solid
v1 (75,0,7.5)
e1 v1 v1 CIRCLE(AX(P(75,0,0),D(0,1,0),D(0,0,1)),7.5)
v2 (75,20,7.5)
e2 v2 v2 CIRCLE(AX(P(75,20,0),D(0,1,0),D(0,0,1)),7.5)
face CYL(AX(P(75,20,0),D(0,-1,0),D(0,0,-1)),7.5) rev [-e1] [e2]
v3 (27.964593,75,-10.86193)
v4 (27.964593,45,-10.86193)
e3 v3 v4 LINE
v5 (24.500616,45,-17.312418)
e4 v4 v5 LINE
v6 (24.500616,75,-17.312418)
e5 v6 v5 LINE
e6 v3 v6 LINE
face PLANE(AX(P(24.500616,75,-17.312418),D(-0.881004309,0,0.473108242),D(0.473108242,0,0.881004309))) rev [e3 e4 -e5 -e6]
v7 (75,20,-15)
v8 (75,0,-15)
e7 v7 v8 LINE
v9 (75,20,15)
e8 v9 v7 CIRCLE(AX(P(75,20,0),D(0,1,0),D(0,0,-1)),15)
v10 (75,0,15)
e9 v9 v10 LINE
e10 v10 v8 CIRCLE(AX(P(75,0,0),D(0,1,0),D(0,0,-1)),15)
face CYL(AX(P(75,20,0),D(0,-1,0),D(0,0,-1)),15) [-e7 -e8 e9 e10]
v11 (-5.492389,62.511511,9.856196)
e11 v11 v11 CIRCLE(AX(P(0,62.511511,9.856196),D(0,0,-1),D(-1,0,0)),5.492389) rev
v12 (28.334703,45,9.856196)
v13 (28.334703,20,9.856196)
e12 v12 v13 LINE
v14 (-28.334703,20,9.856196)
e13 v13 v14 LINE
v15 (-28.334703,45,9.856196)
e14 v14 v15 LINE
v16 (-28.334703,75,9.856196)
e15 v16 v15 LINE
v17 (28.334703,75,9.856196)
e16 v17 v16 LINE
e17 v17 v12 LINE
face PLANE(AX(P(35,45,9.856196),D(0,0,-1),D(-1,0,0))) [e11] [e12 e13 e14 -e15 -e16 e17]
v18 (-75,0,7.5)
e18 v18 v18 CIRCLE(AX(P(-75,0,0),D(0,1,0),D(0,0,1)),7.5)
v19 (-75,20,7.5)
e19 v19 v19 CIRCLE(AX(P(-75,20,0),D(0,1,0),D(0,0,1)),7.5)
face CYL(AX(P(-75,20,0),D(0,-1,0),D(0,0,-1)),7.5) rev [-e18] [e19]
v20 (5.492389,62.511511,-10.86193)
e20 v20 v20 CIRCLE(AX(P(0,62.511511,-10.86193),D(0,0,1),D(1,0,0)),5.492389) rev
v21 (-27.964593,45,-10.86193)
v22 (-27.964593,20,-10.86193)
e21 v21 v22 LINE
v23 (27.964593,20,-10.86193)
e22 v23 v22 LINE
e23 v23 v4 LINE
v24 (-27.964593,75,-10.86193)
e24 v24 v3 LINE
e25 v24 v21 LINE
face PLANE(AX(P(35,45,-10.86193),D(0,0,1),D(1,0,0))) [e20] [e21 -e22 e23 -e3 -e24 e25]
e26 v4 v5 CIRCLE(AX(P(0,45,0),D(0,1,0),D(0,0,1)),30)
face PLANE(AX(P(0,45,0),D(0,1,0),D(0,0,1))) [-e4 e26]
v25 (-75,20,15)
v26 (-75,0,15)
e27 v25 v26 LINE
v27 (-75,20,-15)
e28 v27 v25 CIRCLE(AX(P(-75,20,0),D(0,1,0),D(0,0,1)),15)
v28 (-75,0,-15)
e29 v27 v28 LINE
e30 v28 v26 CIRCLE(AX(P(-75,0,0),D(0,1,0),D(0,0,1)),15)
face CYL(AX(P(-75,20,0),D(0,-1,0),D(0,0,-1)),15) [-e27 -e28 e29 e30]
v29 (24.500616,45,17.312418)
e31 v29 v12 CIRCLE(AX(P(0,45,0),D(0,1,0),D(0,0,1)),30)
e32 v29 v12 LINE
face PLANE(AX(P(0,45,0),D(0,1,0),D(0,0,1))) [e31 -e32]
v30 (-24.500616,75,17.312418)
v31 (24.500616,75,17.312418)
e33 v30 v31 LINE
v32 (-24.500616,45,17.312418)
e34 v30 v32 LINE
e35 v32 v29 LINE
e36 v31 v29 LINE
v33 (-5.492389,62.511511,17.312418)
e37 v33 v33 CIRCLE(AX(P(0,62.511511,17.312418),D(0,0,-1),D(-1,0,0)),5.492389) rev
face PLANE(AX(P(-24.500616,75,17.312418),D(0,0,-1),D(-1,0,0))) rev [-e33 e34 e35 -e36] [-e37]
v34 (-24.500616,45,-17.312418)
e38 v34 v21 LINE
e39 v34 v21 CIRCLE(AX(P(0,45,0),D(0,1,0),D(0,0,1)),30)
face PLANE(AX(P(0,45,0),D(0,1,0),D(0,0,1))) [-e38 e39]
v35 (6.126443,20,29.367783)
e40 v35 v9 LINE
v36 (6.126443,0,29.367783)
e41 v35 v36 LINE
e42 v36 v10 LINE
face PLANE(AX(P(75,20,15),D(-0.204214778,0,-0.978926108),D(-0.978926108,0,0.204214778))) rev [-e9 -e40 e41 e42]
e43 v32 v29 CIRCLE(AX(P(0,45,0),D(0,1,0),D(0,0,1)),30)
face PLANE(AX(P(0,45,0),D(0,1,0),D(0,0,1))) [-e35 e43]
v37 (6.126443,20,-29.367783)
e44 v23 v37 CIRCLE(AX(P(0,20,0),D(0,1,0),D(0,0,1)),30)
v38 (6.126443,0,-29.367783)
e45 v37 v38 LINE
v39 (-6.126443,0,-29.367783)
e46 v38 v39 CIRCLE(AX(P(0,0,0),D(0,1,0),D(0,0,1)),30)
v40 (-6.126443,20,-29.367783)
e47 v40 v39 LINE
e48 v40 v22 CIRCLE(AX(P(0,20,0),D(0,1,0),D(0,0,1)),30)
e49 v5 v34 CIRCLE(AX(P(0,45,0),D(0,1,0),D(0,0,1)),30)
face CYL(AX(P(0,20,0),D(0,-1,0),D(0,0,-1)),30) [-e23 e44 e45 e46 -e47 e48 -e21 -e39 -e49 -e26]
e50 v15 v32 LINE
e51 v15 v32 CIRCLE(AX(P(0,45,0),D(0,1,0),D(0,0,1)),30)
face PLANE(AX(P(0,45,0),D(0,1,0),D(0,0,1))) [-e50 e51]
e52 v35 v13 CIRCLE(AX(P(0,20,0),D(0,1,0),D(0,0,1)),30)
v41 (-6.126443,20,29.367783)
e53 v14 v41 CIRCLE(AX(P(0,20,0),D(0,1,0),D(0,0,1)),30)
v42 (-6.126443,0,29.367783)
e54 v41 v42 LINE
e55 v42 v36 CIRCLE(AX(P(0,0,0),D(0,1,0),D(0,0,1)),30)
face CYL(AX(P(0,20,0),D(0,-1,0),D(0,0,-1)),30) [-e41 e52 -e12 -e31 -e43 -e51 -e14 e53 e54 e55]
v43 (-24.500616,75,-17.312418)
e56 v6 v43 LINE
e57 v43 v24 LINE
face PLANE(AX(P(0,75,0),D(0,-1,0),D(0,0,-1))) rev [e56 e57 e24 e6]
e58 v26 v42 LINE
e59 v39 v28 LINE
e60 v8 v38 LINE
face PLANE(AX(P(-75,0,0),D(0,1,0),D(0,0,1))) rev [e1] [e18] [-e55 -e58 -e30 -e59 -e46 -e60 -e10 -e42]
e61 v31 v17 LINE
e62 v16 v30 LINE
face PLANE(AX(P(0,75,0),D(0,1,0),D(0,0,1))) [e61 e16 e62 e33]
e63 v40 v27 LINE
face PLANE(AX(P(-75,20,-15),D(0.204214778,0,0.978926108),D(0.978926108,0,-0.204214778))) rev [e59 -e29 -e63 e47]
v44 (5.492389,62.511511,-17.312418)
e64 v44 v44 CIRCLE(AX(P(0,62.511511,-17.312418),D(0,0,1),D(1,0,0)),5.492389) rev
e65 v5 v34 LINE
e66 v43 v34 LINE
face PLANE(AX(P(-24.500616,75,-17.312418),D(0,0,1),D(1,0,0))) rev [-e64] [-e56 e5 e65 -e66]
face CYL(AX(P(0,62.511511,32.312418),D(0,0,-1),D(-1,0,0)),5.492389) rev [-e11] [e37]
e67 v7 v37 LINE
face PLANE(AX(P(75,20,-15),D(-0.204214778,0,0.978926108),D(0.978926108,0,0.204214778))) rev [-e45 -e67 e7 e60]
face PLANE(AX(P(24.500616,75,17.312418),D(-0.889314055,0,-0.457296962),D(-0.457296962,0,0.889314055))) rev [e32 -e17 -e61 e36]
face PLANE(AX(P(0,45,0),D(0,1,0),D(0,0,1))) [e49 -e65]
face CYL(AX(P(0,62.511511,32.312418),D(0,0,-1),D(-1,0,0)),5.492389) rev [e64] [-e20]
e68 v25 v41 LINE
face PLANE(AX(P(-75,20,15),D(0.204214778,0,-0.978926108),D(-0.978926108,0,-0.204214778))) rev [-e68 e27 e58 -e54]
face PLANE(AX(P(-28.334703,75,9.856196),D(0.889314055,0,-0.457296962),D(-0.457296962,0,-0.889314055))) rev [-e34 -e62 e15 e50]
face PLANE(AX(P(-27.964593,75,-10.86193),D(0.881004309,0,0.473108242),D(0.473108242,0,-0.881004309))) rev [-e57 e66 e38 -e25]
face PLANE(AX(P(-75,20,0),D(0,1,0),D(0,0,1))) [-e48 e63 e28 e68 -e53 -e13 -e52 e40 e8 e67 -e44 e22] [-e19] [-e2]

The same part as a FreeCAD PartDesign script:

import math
import FreeCAD as App
import Part
import Sketcher

V = App.Vector
Q = App.Units.Quantity


def add_polygon(sketch, points):
    """Adds a closed chain of lines whose ends are joined by coincident constraints."""
    first, n = sketch.GeometryCount, len(points)
    for a, b in zip(points, points[1:] + points[:1]):
        sketch.addGeometry(Part.LineSegment(App.Vector(*a, 0), App.Vector(*b, 0)), False)
    for i in range(n):
        sketch.addConstraint(Sketcher.Constraint("Coincident", first + i, 2, first + (i + 1) % n, 1))

doc = App.newDocument("Part")
body = doc.addObject("PartDesign::Body", "Body")

sketch1 = body.newObject("Sketcher::SketchObject", "Sketch")
sketch1.AttachmentSupport = (doc.getObject("XZ_Plane"), [""])
sketch1.MapMode = "FlatFace"
sketch1.addGeometry([
    Part.LineSegment(V(-6.126443, -29.367783, 0), V(-75, -15, 0)),
    Part.ArcOfCircle(Part.Circle(V(-75, 0, 0), V(0, 0, 1), 15), math.radians(90), math.radians(270)),
    Part.LineSegment(V(-75, 15, 0), V(-6.126443, 29.367783, 0)),
    Part.ArcOfCircle(Part.Circle(V(0, 0, 0), V(0, 0, 1), 30), math.radians(78.216463), math.radians(101.783537)),
    Part.LineSegment(V(6.126443, 29.367783, 0), V(75, 15, 0)),
    Part.ArcOfCircle(Part.Circle(V(75, 0, 0), V(0, 0, 1), 15), math.radians(-90), math.radians(90)),
    Part.LineSegment(V(75, -15, 0), V(6.126443, -29.367783, 0)),
    Part.ArcOfCircle(Part.Circle(V(0, 0, 0), V(0, 0, 1), 30), math.radians(-101.783537), math.radians(-78.216463)),
    Part.Circle(V(75, 0, 0), V(0, 0, 1), 7.5),
    Part.Circle(V(-75, 0, 0), V(0, 0, 1), 7.5),
], False)
sketch1.addConstraint([
    Sketcher.Constraint("Coincident", 0, 2, 1, 2),
    Sketcher.Constraint("Coincident", 1, 1, 2, 1),
    Sketcher.Constraint("Tangent", 2, 2, 3, 2),
    Sketcher.Constraint("Tangent", 3, 1, 4, 1),
    Sketcher.Constraint("Coincident", 4, 2, 5, 2),
    Sketcher.Constraint("Coincident", 5, 1, 6, 1),
    Sketcher.Constraint("Tangent", 6, 2, 7, 2),
    Sketcher.Constraint("Tangent", 7, 1, 0, 1),
    Sketcher.Constraint("Coincident", 3, 3, -1, 1),
    Sketcher.Constraint("Coincident", 7, 3, -1, 1),
    Sketcher.Constraint("Coincident", 8, 3, 5, 3),
    Sketcher.Constraint("Coincident", 9, 3, 1, 3),
    Sketcher.Constraint("Equal", 1, 5),
    Sketcher.Constraint("Equal", 3, 7),
    Sketcher.Constraint("Equal", 8, 9),
    Sketcher.Constraint("Symmetric", 1, 3, 5, 3, -1, 1),
    Sketcher.Constraint("Symmetric", 1, 1, 4, 2, -2),
    Sketcher.Constraint("Parallel", 0, 4),
    Sketcher.Constraint("Parallel", 2, 6),
    Sketcher.Constraint("Vertical", 9, 3, 0, 2),
    Sketcher.Constraint("Diameter", 8, Q("15 mm")),
    Sketcher.Constraint("Radius", 1, Q("15 mm")),
    Sketcher.Constraint("Radius", 3, Q("30 mm")),
    Sketcher.Constraint("DistanceX", 1, 3, -1, 1, Q("75 mm")),
])
pad1 = body.newObject("PartDesign::Pad", "Pad")
pad1.Profile = sketch1
pad1.Length = 20
pad1.Reversed = True

sketch2 = body.newObject("Sketcher::SketchObject", "Sketch001")
sketch2.AttachmentSupport = (doc.getObject("XZ_Plane"), [""])
sketch2.MapMode = "FlatFace"
sketch2.AttachmentOffset = App.Placement(V(0, 0, -20), App.Rotation())
sketch2.addGeometry(Part.Circle(V(0, 0, 0), V(0, 0, 1), 30), False)
sketch2.addConstraint([
    Sketcher.Constraint("Coincident", 0, 3, -1, 1),
    Sketcher.Constraint("Diameter", 0, Q("60 mm")),
])
pad2 = body.newObject("PartDesign::Pad", "Pad001")
pad2.Profile = sketch2
pad2.Length = 25
pad2.Reversed = True

sketch3 = body.newObject("Sketcher::SketchObject", "Sketch002")
sketch3.AttachmentSupport = (doc.getObject("YZ_Plane"), [""])
sketch3.MapMode = "FlatFace"
add_polygon(sketch3, [(45, 9.856196), (20, 9.856196), (20, -10.86193), (45, -10.86193)])
sketch3.addConstraint([
    Sketcher.Constraint("Horizontal", 0),
    Sketcher.Constraint("Vertical", 1),
    Sketcher.Constraint("Horizontal", 2),
    Sketcher.Constraint("Vertical", 3),
    Sketcher.Constraint("DistanceX", 0, 2, 0, 1, Q("25 mm")),
    Sketcher.Constraint("DistanceX", -1, 1, 0, 2, Q("20 mm")),
    Sketcher.Constraint("DistanceY", 1, 2, 1, 1, Q("20.718126 mm")),
    Sketcher.Constraint("DistanceY", 1, 2, -1, 1, Q("10.86193 mm")),
])
pocket1 = body.newObject("PartDesign::Pocket", "Pocket")
pocket1.Profile = sketch3
pocket1.Type = "ThroughAll"
pocket1.Midplane = True

sketch4 = body.newObject("Sketcher::SketchObject", "Sketch003")
sketch4.AttachmentSupport = (doc.getObject("XZ_Plane"), [""])
sketch4.MapMode = "FlatFace"
sketch4.AttachmentOffset = App.Placement(V(0, 0, -45), App.Rotation())
add_polygon(sketch4, [(24.500616, -17.312418), (-24.500616, -17.312418), (-27.964593, -10.86193), (27.964593, -10.86193)])
add_polygon(sketch4, [(-28.334703, 9.856196), (-24.500616, 17.312418), (24.500616, 17.312418), (28.334703, 9.856196)])
sketch4.addConstraint([
    Sketcher.Constraint("Horizontal", 0),
    Sketcher.Constraint("Horizontal", 2),
    Sketcher.Constraint("Horizontal", 5),
    Sketcher.Constraint("Horizontal", 7),
    Sketcher.Constraint("Symmetric", 3, 2, 4, 2, -1, 1),
    Sketcher.Constraint("Vertical", 0, 2, 4, 2),
    Sketcher.Constraint("Vertical", 3, 2, 5, 2),
    Sketcher.Constraint("Equal", 1, 3),
    Sketcher.Constraint("Equal", 4, 6),
    Sketcher.Constraint("DistanceX", 0, 2, 0, 1, Q("49.001231 mm")),
    Sketcher.Constraint("Distance", 4, Q("8.38424 mm")),
    Sketcher.Constraint("DistanceX", 2, 1, 2, 2, Q("55.929186 mm")),
    Sketcher.Constraint("DistanceX", 7, 2, 7, 1, Q("56.669406 mm")),
    Sketcher.Constraint("DistanceY", 0, 2, -1, 1, Q("17.312418 mm")),
    Sketcher.Constraint("DistanceY", 1, 2, -1, 1, Q("10.86193 mm")),
])
pad3 = body.newObject("PartDesign::Pad", "Pad002")
pad3.Profile = sketch4
pad3.Length = 30
pad3.Reversed = True

sketch5 = body.newObject("Sketcher::SketchObject", "Sketch004")
sketch5.AttachmentSupport = (doc.getObject("XY_Plane"), [""])
sketch5.MapMode = "FlatFace"
sketch5.AttachmentOffset = App.Placement(V(0, 0, 17.312418), App.Rotation())
sketch5.addGeometry(Part.Circle(V(0, 62.511511, 0), V(0, 0, 1), 5.492389), False)
sketch5.addConstraint([
    Sketcher.Constraint("PointOnObject", 0, 3, -2),
    Sketcher.Constraint("Diameter", 0, Q("10.984777 mm")),
    Sketcher.Constraint("DistanceY", -1, 1, 0, 3, Q("62.511511 mm")),
])
pocket2 = body.newObject("PartDesign::Pocket", "Pocket001")
pocket2.Profile = sketch5
pocket2.Type = "ThroughAll"
pocket2.Midplane = True

doc.recompute()
